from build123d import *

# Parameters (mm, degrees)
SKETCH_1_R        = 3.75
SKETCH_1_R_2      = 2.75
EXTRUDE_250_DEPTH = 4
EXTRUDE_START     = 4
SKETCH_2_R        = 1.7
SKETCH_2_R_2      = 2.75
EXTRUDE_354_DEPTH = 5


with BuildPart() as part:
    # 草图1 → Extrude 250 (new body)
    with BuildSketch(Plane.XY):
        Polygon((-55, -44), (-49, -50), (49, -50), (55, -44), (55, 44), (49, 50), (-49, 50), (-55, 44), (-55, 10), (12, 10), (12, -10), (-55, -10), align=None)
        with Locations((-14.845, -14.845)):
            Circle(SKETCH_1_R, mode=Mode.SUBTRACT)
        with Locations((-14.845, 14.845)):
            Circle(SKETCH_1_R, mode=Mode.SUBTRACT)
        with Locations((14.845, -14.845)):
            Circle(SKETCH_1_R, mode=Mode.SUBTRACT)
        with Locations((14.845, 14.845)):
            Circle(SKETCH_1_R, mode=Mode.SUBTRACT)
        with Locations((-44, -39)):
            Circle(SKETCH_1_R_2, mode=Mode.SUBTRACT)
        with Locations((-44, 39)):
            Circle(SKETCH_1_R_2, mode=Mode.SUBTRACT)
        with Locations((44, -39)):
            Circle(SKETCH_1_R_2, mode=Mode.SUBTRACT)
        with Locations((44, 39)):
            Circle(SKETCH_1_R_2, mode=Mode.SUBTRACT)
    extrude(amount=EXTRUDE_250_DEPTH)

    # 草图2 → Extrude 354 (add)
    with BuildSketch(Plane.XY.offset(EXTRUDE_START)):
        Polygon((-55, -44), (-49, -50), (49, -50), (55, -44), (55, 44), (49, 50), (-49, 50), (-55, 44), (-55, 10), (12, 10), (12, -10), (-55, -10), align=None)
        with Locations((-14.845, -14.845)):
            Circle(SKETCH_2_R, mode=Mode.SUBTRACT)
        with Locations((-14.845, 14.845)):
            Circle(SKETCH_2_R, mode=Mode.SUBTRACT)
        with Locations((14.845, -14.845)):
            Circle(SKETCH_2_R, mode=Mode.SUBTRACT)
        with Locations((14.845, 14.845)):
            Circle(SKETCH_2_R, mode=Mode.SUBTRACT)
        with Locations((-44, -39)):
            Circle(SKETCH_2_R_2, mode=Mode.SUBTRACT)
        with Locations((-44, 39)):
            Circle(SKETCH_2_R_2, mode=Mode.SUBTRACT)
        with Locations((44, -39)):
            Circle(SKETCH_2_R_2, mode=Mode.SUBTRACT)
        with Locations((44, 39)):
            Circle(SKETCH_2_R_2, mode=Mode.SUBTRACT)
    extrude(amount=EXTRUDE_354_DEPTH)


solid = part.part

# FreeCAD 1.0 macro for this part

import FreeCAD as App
import Part
import Sketcher
Q = App.Units.Quantity


def add_polygon(sketch, points):
    """Adds a closed chain of lines whose ends are joined by coincident constraints."""
    first, n = sketch.GeometryCount, len(points)
    for a, b in zip(points, points[1:] + points[:1]):
        sketch.addGeometry(Part.LineSegment(App.Vector(*a, 0), App.Vector(*b, 0)), False)
    for i in range(n):
        sketch.addConstraint(Sketcher.Constraint("Coincident", first + i, 2, first + (i + 1) % n, 1))

doc = App.newDocument("Part")
params = doc.addObject("Spreadsheet::Sheet", "Params")
for row, (alias, value) in enumerate([
    ("sketch1_diameter", "5.5 mm"),
    ("sketch1_diameter2", "7.5 mm"),
    ("sketch1_width", "98 mm"),
    ("sketch1_width2", "67 mm"),
    ("sketch1_height", "88 mm"),
    ("pad1_length", "4 mm"),
    ("sketch2_diameter", "5.5 mm"),
    ("sketch2_diameter2", "3.4 mm"),
    ("sketch2_width", "98 mm"),
    ("sketch2_width2", "67 mm"),
    ("sketch2_height", "88 mm"),
    ("pad2_length", "5 mm"),
], start=1):
    params.set(f"A{row}", alias)
    params.set(f"B{row}", "=" + value)
    params.setAlias(f"B{row}", alias)

body = doc.addObject("PartDesign::Body", "Body")

sketch1 = body.newObject("Sketcher::SketchObject", "Sketch")
sketch1.AttachmentSupport = (doc.getObject("XY_Plane"), [""])
sketch1.MapMode = "FlatFace"
add_polygon(sketch1, [(-55, -44), (-49, -50), (49, -50), (55, -44), (55, 44), (49, 50), (-49, 50), (-55, 44), (-55, 10), (12, 10), (12, -10), (-55, -10)])
sketch1.addGeometry(Part.Circle(App.Vector(-44, -39, 0), App.Vector(0, 0, 1), 2.8), False)
sketch1.addGeometry(Part.Circle(App.Vector(-14.8, -14.8, 0), App.Vector(0, 0, 1), 3.8), False)
sketch1.addGeometry(Part.Circle(App.Vector(44, -39, 0), App.Vector(0, 0, 1), 2.8), False)
sketch1.addGeometry(Part.Circle(App.Vector(14.8, -14.8, 0), App.Vector(0, 0, 1), 3.8), False)
sketch1.addGeometry(Part.Circle(App.Vector(-14.8, 14.8, 0), App.Vector(0, 0, 1), 3.8), False)
sketch1.addGeometry(Part.Circle(App.Vector(-44, 39, 0), App.Vector(0, 0, 1), 2.8), False)
sketch1.addGeometry(Part.Circle(App.Vector(14.8, 14.8, 0), App.Vector(0, 0, 1), 3.8), False)
sketch1.addGeometry(Part.Circle(App.Vector(44, 39, 0), App.Vector(0, 0, 1), 2.8), False)
sketch1.addConstraint([
    Sketcher.Constraint("Horizontal", 1),
    Sketcher.Constraint("Vertical", 3),
    Sketcher.Constraint("Horizontal", 5),
    Sketcher.Constraint("Vertical", 7),
    Sketcher.Constraint("Horizontal", 8),
    Sketcher.Constraint("Vertical", 9),
    Sketcher.Constraint("Horizontal", 10),
    Sketcher.Constraint("Vertical", 11),
    Sketcher.Constraint("Equal", 12, 14),
    Sketcher.Constraint("Equal", 13, 15),
    Sketcher.Constraint("Equal", 15, 16),
    Sketcher.Constraint("Equal", 14, 17),
    Sketcher.Constraint("Equal", 16, 18),
    Sketcher.Constraint("Equal", 17, 19),
    Sketcher.Constraint("Symmetric", 15, 3, 16, 3, -1, 1),
    Sketcher.Constraint("Symmetric", 14, 3, 17, 3, -1, 1),
    Sketcher.Constraint("Symmetric", 13, 3, 18, 3, -1, 1),
    Sketcher.Constraint("Symmetric", 12, 3, 19, 3, -1, 1),
    Sketcher.Constraint("Symmetric", 0, 2, 4, 2, -1, 1),
    Sketcher.Constraint("Symmetric", 2, 2, 6, 2, -1, 1),
    Sketcher.Constraint("Symmetric", 3, 2, 11, 2, -1, 1),
    Sketcher.Constraint("Symmetric", 12, 3, 14, 3, -2),
    Sketcher.Constraint("Symmetric", 13, 3, 15, 3, -2),
    Sketcher.Constraint("Perpendicular", 0, 2),
    Sketcher.Constraint("Perpendicular", 4, 6),
    Sketcher.Constraint("Horizontal", 3, 2, 6, 2),
    Sketcher.Constraint("Vertical", 1, 2, 4, 2),
    Sketcher.Constraint("Equal", 7, 11),
    Sketcher.Constraint("Diameter", 12, Q("5.5 mm")),
    Sketcher.Constraint("Diameter", 13, Q("7.5 mm")),
    Sketcher.Constraint("DistanceX", 1, 1, 1, 2, Q("98 mm")),
    Sketcher.Constraint("DistanceX", 8, 1, 8, 2, Q("67 mm")),
    Sketcher.Constraint("DistanceY", 3, 1, 3, 2, Q("88 mm")),
    Sketcher.Constraint("DistanceY", 7, 2, 7, 1, Q("34 mm")),
    Sketcher.Constraint("DistanceX", 12, 3, -1, 1, Q("44 mm")),
    Sketcher.Constraint("DistanceY", 12, 3, -1, 1, Q("39 mm")),
    Sketcher.Constraint("DistanceY", 0, 2, -1, 1, Q("50 mm")),
    Sketcher.Constraint("DistanceX", 13, 3, 15, 3, Q("29.69 mm")),
    Sketcher.Constraint("DistanceY", 13, 3, 16, 3, Q("29.69 mm")),
])
sketch1.setExpression("Constraints[40]", "Params.sketch1_diameter")
sketch1.setExpression("Constraints[41]", "Params.sketch1_diameter2")
sketch1.setExpression("Constraints[42]", "Params.sketch1_width")
sketch1.setExpression("Constraints[43]", "Params.sketch1_width2")
sketch1.setExpression("Constraints[44]", "Params.sketch1_height")
pad1 = body.newObject("PartDesign::Pad", "Pad")
pad1.Profile = sketch1
pad1.setExpression("Length", "Params.pad1_length")

sketch2 = body.newObject("Sketcher::SketchObject", "Sketch001")
sketch2.AttachmentSupport = (doc.getObject("XY_Plane"), [""])
sketch2.MapMode = "FlatFace"
sketch2.AttachmentOffset = App.Placement(App.Vector(0, 0, 4), App.Rotation())
add_polygon(sketch2, [(-55, -44), (-49, -50), (49, -50), (55, -44), (55, 44), (49, 50), (-49, 50), (-55, 44), (-55, 10), (12, 10), (12, -10), (-55, -10)])
sketch2.addGeometry(Part.Circle(App.Vector(-44, -39, 0), App.Vector(0, 0, 1), 2.8), False)
sketch2.addGeometry(Part.Circle(App.Vector(-14.8, -14.8, 0), App.Vector(0, 0, 1), 1.7), False)
sketch2.addGeometry(Part.Circle(App.Vector(44, -39, 0), App.Vector(0, 0, 1), 2.8), False)
sketch2.addGeometry(Part.Circle(App.Vector(14.8, -14.8, 0), App.Vector(0, 0, 1), 1.7), False)
sketch2.addGeometry(Part.Circle(App.Vector(-14.8, 14.8, 0), App.Vector(0, 0, 1), 1.7), False)
sketch2.addGeometry(Part.Circle(App.Vector(-44, 39, 0), App.Vector(0, 0, 1), 2.8), False)
sketch2.addGeometry(Part.Circle(App.Vector(14.8, 14.8, 0), App.Vector(0, 0, 1), 1.7), False)
sketch2.addGeometry(Part.Circle(App.Vector(44, 39, 0), App.Vector(0, 0, 1), 2.8), False)
sketch2.addConstraint([
    Sketcher.Constraint("Horizontal", 1),
    Sketcher.Constraint("Vertical", 3),
    Sketcher.Constraint("Horizontal", 5),
    Sketcher.Constraint("Vertical", 7),
    Sketcher.Constraint("Horizontal", 8),
    Sketcher.Constraint("Vertical", 9),
    Sketcher.Constraint("Horizontal", 10),
    Sketcher.Constraint("Vertical", 11),
    Sketcher.Constraint("Equal", 12, 14),
    Sketcher.Constraint("Equal", 13, 15),
    Sketcher.Constraint("Equal", 15, 16),
    Sketcher.Constraint("Equal", 14, 17),
    Sketcher.Constraint("Equal", 16, 18),
    Sketcher.Constraint("Equal", 17, 19),
    Sketcher.Constraint("Symmetric", 15, 3, 16, 3, -1, 1),
    Sketcher.Constraint("Symmetric", 14, 3, 17, 3, -1, 1),
    Sketcher.Constraint("Symmetric", 13, 3, 18, 3, -1, 1),
    Sketcher.Constraint("Symmetric", 12, 3, 19, 3, -1, 1),
    Sketcher.Constraint("Symmetric", 0, 2, 4, 2, -1, 1),
    Sketcher.Constraint("Symmetric", 2, 2, 6, 2, -1, 1),
    Sketcher.Constraint("Symmetric", 3, 2, 11, 2, -1, 1),
    Sketcher.Constraint("Symmetric", 12, 3, 14, 3, -2),
    Sketcher.Constraint("Symmetric", 13, 3, 15, 3, -2),
    Sketcher.Constraint("Perpendicular", 0, 2),
    Sketcher.Constraint("Perpendicular", 4, 6),
    Sketcher.Constraint("Horizontal", 3, 2, 6, 2),
    Sketcher.Constraint("Vertical", 1, 2, 4, 2),
    Sketcher.Constraint("Equal", 7, 11),
    Sketcher.Constraint("Diameter", 12, Q("5.5 mm")),
    Sketcher.Constraint("Diameter", 13, Q("3.4 mm")),
    Sketcher.Constraint("DistanceX", 1, 1, 1, 2, Q("98 mm")),
    Sketcher.Constraint("DistanceX", 8, 1, 8, 2, Q("67 mm")),
    Sketcher.Constraint("DistanceY", 3, 1, 3, 2, Q("88 mm")),
    Sketcher.Constraint("DistanceY", 7, 2, 7, 1, Q("34 mm")),
    Sketcher.Constraint("DistanceX", 12, 3, -1, 1, Q("44 mm")),
    Sketcher.Constraint("DistanceY", 12, 3, -1, 1, Q("39 mm")),
    Sketcher.Constraint("DistanceY", 0, 2, -1, 1, Q("50 mm")),
    Sketcher.Constraint("DistanceX", 13, 3, 15, 3, Q("29.69 mm")),
    Sketcher.Constraint("DistanceY", 13, 3, 16, 3, Q("29.69 mm")),
])
sketch2.setExpression("Constraints[40]", "Params.sketch2_diameter")
sketch2.setExpression("Constraints[41]", "Params.sketch2_diameter2")
sketch2.setExpression("Constraints[42]", "Params.sketch2_width")
sketch2.setExpression("Constraints[43]", "Params.sketch2_width2")
sketch2.setExpression("Constraints[44]", "Params.sketch2_height")
pad2 = body.newObject("PartDesign::Pad", "Pad001")
pad2.Profile = sketch2
pad2.setExpression("Length", "Params.pad2_length")

doc.recompute()
